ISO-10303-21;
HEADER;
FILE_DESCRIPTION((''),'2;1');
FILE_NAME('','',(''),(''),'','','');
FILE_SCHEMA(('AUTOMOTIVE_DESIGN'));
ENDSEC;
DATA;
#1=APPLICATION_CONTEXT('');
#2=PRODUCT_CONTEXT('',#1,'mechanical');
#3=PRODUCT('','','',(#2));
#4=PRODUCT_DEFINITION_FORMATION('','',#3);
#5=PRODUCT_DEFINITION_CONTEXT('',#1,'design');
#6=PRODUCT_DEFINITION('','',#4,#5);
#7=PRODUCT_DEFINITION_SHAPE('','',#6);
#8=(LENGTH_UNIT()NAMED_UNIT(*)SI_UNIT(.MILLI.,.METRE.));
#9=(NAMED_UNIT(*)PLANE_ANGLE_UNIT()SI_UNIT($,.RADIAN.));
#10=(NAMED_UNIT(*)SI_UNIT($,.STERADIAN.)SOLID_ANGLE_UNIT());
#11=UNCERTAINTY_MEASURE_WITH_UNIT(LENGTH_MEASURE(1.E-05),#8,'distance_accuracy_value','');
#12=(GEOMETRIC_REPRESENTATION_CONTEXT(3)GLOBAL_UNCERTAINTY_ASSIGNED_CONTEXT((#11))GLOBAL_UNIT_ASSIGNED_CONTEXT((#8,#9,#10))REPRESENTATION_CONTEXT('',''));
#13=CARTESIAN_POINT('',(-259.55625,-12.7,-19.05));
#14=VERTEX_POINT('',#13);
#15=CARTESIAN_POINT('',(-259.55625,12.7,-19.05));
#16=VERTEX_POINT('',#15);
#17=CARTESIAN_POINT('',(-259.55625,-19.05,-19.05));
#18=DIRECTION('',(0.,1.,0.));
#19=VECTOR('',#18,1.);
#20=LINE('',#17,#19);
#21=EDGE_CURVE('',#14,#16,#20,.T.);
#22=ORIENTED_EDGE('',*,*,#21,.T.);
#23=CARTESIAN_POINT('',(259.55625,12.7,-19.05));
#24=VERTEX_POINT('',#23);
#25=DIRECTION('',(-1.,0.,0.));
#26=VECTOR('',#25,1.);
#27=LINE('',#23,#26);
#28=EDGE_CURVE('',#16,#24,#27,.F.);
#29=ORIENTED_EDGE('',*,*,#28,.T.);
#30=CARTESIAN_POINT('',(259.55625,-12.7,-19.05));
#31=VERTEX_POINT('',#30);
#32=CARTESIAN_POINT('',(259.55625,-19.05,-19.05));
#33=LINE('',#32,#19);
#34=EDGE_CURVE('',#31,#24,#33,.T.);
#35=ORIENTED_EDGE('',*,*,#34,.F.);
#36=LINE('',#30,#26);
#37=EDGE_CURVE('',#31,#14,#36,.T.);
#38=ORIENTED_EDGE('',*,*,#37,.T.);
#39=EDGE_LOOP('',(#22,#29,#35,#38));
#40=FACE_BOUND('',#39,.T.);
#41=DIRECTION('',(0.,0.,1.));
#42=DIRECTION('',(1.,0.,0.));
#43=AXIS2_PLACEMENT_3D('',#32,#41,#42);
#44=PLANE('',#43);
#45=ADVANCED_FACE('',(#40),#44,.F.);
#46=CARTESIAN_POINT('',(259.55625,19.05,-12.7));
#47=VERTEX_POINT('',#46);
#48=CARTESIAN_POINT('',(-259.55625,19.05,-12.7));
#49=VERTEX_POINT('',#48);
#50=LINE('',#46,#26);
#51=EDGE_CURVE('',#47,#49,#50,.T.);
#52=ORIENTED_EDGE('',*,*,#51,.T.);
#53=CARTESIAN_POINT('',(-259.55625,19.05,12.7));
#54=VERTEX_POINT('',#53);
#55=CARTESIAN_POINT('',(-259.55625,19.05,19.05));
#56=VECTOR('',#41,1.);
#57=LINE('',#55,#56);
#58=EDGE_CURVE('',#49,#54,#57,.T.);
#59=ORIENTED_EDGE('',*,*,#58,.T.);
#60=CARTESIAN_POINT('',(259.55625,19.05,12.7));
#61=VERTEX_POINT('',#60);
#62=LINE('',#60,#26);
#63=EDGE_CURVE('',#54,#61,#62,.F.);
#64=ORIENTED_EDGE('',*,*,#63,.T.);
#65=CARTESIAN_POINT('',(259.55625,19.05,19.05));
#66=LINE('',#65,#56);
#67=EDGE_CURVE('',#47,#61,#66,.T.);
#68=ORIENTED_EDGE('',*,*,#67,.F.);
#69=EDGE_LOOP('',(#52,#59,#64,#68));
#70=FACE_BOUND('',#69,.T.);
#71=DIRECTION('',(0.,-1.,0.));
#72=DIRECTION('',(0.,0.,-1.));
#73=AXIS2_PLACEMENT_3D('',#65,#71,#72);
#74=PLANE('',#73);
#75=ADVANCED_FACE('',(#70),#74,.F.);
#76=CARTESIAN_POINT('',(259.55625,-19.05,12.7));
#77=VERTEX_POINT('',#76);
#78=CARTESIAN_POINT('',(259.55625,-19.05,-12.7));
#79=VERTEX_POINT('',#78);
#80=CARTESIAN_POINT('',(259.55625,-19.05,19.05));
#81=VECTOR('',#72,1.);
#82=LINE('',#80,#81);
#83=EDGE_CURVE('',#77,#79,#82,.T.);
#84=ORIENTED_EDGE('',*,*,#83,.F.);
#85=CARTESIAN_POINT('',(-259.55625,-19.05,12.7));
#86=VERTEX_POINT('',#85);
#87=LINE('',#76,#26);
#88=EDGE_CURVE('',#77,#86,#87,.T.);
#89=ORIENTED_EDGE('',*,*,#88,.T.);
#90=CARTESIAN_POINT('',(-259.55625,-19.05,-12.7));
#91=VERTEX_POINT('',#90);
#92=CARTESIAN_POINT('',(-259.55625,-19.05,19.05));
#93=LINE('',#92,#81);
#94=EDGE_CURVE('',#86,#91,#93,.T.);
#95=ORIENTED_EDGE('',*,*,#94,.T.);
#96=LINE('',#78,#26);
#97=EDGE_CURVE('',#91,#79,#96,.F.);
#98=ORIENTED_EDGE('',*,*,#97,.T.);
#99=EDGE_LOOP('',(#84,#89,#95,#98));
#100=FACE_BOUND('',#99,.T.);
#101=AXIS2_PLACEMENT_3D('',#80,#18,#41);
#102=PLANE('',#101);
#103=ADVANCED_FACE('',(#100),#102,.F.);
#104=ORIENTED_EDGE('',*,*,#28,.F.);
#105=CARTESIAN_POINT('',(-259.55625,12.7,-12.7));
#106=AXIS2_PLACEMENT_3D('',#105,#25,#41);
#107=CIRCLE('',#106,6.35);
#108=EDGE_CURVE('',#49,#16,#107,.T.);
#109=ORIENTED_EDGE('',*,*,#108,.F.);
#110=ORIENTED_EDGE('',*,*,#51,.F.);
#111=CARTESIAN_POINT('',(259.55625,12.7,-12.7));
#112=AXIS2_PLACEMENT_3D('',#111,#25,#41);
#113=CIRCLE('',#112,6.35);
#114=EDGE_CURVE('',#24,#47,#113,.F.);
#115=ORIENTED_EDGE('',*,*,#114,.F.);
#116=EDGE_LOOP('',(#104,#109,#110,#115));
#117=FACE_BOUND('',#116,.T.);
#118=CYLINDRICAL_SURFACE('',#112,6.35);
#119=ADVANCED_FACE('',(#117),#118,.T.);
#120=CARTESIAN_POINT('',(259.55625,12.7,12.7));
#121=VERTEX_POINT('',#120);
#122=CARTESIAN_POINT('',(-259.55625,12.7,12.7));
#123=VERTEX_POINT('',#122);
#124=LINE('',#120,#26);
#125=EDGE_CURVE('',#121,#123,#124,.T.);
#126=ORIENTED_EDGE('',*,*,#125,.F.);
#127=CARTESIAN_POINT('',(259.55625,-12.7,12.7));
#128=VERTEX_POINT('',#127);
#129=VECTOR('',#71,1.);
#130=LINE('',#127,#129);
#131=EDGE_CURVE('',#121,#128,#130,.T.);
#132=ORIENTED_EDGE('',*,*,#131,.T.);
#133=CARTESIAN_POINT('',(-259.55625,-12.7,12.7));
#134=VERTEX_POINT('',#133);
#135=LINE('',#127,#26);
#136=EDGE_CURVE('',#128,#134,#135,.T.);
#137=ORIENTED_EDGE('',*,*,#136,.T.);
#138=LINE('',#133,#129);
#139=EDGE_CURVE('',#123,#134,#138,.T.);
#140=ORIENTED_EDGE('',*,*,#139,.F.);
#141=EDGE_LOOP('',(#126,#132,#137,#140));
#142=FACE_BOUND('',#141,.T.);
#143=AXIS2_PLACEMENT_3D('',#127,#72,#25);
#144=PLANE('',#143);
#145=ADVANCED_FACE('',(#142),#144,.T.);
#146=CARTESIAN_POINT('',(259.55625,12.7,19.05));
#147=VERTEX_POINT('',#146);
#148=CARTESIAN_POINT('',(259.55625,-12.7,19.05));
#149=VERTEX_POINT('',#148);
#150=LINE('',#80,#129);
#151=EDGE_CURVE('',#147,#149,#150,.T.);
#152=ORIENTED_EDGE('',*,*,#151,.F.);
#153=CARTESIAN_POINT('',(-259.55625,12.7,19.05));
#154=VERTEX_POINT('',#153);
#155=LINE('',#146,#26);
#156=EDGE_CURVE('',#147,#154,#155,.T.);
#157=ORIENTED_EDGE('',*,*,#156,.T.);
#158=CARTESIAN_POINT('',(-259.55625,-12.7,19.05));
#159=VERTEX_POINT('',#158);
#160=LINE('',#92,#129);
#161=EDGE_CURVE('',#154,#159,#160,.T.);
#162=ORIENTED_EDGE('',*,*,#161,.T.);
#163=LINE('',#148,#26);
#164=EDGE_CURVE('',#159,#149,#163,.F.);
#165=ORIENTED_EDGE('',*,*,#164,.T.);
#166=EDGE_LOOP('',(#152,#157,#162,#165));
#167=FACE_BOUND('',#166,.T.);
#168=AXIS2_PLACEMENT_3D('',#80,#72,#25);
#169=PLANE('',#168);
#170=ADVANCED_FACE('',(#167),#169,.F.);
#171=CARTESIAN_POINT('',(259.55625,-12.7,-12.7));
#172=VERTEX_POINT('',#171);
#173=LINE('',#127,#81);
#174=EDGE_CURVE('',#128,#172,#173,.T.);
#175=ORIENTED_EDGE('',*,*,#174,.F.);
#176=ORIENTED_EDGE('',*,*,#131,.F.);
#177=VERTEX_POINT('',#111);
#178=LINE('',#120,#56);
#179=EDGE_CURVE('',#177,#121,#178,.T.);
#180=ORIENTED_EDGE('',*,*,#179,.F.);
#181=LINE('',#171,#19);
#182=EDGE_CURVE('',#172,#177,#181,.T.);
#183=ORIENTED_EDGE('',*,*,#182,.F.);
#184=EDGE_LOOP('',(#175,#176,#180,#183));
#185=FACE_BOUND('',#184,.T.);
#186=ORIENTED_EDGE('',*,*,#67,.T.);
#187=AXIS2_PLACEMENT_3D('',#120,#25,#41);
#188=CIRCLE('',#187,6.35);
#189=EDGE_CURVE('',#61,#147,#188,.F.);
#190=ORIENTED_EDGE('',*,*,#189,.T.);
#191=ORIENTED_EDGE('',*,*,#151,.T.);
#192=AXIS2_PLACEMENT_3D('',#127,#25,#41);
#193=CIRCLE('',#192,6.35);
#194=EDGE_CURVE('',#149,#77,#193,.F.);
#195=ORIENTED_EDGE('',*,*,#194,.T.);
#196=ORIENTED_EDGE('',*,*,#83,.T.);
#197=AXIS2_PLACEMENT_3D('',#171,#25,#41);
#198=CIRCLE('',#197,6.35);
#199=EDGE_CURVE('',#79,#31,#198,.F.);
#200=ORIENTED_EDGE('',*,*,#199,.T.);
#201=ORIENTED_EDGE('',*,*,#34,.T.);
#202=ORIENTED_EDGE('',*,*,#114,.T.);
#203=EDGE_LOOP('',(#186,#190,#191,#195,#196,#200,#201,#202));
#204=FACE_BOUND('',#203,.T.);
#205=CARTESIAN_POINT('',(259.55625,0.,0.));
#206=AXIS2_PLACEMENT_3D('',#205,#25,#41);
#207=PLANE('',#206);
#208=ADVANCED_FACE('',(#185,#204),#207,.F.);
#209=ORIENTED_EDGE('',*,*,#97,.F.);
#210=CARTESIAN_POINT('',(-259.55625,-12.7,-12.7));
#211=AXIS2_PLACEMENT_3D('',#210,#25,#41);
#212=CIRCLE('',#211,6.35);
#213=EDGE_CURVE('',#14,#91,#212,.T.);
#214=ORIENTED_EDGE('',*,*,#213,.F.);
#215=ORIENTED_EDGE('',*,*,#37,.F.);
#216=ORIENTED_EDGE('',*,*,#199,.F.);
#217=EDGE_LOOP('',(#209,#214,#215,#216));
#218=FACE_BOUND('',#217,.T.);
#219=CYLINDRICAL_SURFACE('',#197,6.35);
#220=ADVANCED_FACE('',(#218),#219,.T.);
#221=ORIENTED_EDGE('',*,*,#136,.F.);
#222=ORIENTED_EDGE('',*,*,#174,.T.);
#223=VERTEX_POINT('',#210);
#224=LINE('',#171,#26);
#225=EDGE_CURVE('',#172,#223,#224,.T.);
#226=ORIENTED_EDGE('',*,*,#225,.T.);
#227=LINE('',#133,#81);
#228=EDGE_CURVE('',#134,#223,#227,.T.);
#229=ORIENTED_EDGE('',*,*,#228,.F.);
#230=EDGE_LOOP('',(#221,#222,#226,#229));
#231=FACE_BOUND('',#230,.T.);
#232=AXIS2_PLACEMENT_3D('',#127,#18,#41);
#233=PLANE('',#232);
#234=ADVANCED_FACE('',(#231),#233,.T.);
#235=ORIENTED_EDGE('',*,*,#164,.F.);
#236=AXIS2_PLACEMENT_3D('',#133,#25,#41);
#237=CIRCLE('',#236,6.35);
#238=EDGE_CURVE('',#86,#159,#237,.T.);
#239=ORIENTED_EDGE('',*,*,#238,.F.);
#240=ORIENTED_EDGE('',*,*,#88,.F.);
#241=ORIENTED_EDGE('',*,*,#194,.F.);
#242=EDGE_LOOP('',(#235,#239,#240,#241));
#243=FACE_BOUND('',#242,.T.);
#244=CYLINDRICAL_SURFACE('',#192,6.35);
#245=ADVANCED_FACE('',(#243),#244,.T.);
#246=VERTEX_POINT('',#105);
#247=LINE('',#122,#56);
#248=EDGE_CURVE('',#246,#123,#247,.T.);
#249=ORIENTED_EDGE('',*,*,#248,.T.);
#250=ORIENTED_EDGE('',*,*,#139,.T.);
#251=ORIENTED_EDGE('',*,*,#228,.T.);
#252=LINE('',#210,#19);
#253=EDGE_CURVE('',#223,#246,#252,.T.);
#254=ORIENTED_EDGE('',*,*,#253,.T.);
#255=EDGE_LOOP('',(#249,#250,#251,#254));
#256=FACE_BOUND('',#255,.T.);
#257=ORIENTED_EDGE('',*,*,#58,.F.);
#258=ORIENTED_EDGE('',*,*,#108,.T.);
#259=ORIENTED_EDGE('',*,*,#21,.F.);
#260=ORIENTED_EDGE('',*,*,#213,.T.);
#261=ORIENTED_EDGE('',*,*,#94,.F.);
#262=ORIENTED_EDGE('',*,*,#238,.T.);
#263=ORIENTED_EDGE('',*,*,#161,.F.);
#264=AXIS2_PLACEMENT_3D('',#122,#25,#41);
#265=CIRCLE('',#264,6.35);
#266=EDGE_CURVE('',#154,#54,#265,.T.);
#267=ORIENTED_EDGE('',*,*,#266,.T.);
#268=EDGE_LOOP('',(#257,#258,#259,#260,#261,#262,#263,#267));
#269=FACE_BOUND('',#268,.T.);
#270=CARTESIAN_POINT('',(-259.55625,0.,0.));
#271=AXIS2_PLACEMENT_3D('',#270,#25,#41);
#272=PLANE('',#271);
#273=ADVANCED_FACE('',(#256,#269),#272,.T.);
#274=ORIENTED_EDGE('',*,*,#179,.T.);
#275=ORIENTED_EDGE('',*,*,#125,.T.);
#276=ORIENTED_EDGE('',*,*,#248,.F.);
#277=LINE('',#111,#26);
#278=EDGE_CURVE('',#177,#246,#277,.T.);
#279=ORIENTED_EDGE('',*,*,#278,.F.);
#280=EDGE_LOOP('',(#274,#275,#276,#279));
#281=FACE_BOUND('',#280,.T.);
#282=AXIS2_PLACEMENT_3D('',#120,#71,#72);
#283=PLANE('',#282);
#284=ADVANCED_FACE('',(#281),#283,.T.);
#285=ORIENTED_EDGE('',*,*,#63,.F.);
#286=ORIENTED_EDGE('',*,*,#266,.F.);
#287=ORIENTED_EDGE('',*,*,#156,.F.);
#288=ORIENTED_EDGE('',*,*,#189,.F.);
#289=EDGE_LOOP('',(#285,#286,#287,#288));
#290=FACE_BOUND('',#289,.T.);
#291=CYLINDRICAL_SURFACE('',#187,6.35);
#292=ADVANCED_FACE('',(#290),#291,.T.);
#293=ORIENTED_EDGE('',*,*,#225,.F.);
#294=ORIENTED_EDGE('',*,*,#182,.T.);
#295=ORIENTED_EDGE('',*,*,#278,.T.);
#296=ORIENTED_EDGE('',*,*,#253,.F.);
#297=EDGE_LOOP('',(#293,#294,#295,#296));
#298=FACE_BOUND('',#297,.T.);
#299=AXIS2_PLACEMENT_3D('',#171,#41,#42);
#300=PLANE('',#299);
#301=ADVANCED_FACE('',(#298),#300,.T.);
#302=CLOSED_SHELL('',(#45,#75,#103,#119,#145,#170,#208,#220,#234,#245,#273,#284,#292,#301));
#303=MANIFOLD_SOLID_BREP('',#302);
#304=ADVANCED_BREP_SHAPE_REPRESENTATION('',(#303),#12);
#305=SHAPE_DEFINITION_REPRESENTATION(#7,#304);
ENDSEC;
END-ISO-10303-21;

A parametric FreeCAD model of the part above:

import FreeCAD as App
import Part
import Sketcher

V = App.Vector
Q = App.Units.Quantity


def edges_at(feature, points):
    """Names of the edges that pass closest to the given points."""
    edges = feature.Shape.Edges
    near = lambda p: min(range(len(edges)), key=lambda i: edges[i].distToShape(Part.Vertex(*p))[0])
    return sorted({f"Edge{near(p) + 1}" for p in points})


def add_polygon(sketch, points):
    """Adds a closed chain of lines whose ends are joined by coincident constraints."""
    first, n = sketch.GeometryCount, len(points)
    for a, b in zip(points, points[1:] + points[:1]):
        sketch.addGeometry(Part.LineSegment(App.Vector(*a, 0), App.Vector(*b, 0)), False)
    for i in range(n):
        sketch.addConstraint(Sketcher.Constraint("Coincident", first + i, 2, first + (i + 1) % n, 1))

doc = App.newDocument("Part")
body = doc.addObject("PartDesign::Body", "Body")

sketch1 = doc.addObject("Sketcher::SketchObject", "Sketch")
body.addObject(sketch1)
sketch1.AttachmentSupport = (doc.YZ_Plane, [""])
sketch1.MapMode = "FlatFace"
add_polygon(sketch1, [(19.05, 19.05), (-19.05, 19.05), (-19.05, -19.05), (19.05, -19.05)])
add_polygon(sketch1, [(-12.7, -12.7), (-12.7, 12.7), (12.7, 12.7), (12.7, -12.7)])
sketch1.addConstraint(Sketcher.Constraint("Horizontal", 0))
sketch1.addConstraint(Sketcher.Constraint("Vertical", 1))
sketch1.addConstraint(Sketcher.Constraint("Horizontal", 2))
sketch1.addConstraint(Sketcher.Constraint("Vertical", 3))
sketch1.addConstraint(Sketcher.Constraint("Vertical", 4))
sketch1.addConstraint(Sketcher.Constraint("Horizontal", 5))
sketch1.addConstraint(Sketcher.Constraint("Vertical", 6))
sketch1.addConstraint(Sketcher.Constraint("Horizontal", 7))
sketch1.addConstraint(Sketcher.Constraint("Symmetric", 0, 2, 2, 2, -1, 1))
sketch1.addConstraint(Sketcher.Constraint("Symmetric", 4, 2, 6, 2, -1, 1))
sketch1.addConstraint(Sketcher.Constraint("Equal", 2, 1))
sketch1.addConstraint(Sketcher.Constraint("Equal", 7, 4))
sketch1.addConstraint(Sketcher.Constraint("DistanceX", 5, 1, 5, 2, Q("1 in")))
sketch1.addConstraint(Sketcher.Constraint("DistanceX", 0, 2, 0, 1, Q("1.5 in")))
pad1 = doc.addObject("PartDesign::Pad", "Pad")
body.addObject(pad1)
pad1.Profile = sketch1
pad1.Length = Q("20.4375 in")
pad1.Midplane = True
doc.recompute()

fillet = doc.addObject("PartDesign::Fillet", "Fillet")
body.addObject(fillet)
fillet.Base = (pad1, edges_at(pad1, [
    (0, -19.05, -19.05),
    (0, -19.05, 19.05),
    (0, 19.05, 19.05),
    (0, 19.05, -19.05),
]))
fillet.Radius = Q("0.25 in")

doc.recompute()
